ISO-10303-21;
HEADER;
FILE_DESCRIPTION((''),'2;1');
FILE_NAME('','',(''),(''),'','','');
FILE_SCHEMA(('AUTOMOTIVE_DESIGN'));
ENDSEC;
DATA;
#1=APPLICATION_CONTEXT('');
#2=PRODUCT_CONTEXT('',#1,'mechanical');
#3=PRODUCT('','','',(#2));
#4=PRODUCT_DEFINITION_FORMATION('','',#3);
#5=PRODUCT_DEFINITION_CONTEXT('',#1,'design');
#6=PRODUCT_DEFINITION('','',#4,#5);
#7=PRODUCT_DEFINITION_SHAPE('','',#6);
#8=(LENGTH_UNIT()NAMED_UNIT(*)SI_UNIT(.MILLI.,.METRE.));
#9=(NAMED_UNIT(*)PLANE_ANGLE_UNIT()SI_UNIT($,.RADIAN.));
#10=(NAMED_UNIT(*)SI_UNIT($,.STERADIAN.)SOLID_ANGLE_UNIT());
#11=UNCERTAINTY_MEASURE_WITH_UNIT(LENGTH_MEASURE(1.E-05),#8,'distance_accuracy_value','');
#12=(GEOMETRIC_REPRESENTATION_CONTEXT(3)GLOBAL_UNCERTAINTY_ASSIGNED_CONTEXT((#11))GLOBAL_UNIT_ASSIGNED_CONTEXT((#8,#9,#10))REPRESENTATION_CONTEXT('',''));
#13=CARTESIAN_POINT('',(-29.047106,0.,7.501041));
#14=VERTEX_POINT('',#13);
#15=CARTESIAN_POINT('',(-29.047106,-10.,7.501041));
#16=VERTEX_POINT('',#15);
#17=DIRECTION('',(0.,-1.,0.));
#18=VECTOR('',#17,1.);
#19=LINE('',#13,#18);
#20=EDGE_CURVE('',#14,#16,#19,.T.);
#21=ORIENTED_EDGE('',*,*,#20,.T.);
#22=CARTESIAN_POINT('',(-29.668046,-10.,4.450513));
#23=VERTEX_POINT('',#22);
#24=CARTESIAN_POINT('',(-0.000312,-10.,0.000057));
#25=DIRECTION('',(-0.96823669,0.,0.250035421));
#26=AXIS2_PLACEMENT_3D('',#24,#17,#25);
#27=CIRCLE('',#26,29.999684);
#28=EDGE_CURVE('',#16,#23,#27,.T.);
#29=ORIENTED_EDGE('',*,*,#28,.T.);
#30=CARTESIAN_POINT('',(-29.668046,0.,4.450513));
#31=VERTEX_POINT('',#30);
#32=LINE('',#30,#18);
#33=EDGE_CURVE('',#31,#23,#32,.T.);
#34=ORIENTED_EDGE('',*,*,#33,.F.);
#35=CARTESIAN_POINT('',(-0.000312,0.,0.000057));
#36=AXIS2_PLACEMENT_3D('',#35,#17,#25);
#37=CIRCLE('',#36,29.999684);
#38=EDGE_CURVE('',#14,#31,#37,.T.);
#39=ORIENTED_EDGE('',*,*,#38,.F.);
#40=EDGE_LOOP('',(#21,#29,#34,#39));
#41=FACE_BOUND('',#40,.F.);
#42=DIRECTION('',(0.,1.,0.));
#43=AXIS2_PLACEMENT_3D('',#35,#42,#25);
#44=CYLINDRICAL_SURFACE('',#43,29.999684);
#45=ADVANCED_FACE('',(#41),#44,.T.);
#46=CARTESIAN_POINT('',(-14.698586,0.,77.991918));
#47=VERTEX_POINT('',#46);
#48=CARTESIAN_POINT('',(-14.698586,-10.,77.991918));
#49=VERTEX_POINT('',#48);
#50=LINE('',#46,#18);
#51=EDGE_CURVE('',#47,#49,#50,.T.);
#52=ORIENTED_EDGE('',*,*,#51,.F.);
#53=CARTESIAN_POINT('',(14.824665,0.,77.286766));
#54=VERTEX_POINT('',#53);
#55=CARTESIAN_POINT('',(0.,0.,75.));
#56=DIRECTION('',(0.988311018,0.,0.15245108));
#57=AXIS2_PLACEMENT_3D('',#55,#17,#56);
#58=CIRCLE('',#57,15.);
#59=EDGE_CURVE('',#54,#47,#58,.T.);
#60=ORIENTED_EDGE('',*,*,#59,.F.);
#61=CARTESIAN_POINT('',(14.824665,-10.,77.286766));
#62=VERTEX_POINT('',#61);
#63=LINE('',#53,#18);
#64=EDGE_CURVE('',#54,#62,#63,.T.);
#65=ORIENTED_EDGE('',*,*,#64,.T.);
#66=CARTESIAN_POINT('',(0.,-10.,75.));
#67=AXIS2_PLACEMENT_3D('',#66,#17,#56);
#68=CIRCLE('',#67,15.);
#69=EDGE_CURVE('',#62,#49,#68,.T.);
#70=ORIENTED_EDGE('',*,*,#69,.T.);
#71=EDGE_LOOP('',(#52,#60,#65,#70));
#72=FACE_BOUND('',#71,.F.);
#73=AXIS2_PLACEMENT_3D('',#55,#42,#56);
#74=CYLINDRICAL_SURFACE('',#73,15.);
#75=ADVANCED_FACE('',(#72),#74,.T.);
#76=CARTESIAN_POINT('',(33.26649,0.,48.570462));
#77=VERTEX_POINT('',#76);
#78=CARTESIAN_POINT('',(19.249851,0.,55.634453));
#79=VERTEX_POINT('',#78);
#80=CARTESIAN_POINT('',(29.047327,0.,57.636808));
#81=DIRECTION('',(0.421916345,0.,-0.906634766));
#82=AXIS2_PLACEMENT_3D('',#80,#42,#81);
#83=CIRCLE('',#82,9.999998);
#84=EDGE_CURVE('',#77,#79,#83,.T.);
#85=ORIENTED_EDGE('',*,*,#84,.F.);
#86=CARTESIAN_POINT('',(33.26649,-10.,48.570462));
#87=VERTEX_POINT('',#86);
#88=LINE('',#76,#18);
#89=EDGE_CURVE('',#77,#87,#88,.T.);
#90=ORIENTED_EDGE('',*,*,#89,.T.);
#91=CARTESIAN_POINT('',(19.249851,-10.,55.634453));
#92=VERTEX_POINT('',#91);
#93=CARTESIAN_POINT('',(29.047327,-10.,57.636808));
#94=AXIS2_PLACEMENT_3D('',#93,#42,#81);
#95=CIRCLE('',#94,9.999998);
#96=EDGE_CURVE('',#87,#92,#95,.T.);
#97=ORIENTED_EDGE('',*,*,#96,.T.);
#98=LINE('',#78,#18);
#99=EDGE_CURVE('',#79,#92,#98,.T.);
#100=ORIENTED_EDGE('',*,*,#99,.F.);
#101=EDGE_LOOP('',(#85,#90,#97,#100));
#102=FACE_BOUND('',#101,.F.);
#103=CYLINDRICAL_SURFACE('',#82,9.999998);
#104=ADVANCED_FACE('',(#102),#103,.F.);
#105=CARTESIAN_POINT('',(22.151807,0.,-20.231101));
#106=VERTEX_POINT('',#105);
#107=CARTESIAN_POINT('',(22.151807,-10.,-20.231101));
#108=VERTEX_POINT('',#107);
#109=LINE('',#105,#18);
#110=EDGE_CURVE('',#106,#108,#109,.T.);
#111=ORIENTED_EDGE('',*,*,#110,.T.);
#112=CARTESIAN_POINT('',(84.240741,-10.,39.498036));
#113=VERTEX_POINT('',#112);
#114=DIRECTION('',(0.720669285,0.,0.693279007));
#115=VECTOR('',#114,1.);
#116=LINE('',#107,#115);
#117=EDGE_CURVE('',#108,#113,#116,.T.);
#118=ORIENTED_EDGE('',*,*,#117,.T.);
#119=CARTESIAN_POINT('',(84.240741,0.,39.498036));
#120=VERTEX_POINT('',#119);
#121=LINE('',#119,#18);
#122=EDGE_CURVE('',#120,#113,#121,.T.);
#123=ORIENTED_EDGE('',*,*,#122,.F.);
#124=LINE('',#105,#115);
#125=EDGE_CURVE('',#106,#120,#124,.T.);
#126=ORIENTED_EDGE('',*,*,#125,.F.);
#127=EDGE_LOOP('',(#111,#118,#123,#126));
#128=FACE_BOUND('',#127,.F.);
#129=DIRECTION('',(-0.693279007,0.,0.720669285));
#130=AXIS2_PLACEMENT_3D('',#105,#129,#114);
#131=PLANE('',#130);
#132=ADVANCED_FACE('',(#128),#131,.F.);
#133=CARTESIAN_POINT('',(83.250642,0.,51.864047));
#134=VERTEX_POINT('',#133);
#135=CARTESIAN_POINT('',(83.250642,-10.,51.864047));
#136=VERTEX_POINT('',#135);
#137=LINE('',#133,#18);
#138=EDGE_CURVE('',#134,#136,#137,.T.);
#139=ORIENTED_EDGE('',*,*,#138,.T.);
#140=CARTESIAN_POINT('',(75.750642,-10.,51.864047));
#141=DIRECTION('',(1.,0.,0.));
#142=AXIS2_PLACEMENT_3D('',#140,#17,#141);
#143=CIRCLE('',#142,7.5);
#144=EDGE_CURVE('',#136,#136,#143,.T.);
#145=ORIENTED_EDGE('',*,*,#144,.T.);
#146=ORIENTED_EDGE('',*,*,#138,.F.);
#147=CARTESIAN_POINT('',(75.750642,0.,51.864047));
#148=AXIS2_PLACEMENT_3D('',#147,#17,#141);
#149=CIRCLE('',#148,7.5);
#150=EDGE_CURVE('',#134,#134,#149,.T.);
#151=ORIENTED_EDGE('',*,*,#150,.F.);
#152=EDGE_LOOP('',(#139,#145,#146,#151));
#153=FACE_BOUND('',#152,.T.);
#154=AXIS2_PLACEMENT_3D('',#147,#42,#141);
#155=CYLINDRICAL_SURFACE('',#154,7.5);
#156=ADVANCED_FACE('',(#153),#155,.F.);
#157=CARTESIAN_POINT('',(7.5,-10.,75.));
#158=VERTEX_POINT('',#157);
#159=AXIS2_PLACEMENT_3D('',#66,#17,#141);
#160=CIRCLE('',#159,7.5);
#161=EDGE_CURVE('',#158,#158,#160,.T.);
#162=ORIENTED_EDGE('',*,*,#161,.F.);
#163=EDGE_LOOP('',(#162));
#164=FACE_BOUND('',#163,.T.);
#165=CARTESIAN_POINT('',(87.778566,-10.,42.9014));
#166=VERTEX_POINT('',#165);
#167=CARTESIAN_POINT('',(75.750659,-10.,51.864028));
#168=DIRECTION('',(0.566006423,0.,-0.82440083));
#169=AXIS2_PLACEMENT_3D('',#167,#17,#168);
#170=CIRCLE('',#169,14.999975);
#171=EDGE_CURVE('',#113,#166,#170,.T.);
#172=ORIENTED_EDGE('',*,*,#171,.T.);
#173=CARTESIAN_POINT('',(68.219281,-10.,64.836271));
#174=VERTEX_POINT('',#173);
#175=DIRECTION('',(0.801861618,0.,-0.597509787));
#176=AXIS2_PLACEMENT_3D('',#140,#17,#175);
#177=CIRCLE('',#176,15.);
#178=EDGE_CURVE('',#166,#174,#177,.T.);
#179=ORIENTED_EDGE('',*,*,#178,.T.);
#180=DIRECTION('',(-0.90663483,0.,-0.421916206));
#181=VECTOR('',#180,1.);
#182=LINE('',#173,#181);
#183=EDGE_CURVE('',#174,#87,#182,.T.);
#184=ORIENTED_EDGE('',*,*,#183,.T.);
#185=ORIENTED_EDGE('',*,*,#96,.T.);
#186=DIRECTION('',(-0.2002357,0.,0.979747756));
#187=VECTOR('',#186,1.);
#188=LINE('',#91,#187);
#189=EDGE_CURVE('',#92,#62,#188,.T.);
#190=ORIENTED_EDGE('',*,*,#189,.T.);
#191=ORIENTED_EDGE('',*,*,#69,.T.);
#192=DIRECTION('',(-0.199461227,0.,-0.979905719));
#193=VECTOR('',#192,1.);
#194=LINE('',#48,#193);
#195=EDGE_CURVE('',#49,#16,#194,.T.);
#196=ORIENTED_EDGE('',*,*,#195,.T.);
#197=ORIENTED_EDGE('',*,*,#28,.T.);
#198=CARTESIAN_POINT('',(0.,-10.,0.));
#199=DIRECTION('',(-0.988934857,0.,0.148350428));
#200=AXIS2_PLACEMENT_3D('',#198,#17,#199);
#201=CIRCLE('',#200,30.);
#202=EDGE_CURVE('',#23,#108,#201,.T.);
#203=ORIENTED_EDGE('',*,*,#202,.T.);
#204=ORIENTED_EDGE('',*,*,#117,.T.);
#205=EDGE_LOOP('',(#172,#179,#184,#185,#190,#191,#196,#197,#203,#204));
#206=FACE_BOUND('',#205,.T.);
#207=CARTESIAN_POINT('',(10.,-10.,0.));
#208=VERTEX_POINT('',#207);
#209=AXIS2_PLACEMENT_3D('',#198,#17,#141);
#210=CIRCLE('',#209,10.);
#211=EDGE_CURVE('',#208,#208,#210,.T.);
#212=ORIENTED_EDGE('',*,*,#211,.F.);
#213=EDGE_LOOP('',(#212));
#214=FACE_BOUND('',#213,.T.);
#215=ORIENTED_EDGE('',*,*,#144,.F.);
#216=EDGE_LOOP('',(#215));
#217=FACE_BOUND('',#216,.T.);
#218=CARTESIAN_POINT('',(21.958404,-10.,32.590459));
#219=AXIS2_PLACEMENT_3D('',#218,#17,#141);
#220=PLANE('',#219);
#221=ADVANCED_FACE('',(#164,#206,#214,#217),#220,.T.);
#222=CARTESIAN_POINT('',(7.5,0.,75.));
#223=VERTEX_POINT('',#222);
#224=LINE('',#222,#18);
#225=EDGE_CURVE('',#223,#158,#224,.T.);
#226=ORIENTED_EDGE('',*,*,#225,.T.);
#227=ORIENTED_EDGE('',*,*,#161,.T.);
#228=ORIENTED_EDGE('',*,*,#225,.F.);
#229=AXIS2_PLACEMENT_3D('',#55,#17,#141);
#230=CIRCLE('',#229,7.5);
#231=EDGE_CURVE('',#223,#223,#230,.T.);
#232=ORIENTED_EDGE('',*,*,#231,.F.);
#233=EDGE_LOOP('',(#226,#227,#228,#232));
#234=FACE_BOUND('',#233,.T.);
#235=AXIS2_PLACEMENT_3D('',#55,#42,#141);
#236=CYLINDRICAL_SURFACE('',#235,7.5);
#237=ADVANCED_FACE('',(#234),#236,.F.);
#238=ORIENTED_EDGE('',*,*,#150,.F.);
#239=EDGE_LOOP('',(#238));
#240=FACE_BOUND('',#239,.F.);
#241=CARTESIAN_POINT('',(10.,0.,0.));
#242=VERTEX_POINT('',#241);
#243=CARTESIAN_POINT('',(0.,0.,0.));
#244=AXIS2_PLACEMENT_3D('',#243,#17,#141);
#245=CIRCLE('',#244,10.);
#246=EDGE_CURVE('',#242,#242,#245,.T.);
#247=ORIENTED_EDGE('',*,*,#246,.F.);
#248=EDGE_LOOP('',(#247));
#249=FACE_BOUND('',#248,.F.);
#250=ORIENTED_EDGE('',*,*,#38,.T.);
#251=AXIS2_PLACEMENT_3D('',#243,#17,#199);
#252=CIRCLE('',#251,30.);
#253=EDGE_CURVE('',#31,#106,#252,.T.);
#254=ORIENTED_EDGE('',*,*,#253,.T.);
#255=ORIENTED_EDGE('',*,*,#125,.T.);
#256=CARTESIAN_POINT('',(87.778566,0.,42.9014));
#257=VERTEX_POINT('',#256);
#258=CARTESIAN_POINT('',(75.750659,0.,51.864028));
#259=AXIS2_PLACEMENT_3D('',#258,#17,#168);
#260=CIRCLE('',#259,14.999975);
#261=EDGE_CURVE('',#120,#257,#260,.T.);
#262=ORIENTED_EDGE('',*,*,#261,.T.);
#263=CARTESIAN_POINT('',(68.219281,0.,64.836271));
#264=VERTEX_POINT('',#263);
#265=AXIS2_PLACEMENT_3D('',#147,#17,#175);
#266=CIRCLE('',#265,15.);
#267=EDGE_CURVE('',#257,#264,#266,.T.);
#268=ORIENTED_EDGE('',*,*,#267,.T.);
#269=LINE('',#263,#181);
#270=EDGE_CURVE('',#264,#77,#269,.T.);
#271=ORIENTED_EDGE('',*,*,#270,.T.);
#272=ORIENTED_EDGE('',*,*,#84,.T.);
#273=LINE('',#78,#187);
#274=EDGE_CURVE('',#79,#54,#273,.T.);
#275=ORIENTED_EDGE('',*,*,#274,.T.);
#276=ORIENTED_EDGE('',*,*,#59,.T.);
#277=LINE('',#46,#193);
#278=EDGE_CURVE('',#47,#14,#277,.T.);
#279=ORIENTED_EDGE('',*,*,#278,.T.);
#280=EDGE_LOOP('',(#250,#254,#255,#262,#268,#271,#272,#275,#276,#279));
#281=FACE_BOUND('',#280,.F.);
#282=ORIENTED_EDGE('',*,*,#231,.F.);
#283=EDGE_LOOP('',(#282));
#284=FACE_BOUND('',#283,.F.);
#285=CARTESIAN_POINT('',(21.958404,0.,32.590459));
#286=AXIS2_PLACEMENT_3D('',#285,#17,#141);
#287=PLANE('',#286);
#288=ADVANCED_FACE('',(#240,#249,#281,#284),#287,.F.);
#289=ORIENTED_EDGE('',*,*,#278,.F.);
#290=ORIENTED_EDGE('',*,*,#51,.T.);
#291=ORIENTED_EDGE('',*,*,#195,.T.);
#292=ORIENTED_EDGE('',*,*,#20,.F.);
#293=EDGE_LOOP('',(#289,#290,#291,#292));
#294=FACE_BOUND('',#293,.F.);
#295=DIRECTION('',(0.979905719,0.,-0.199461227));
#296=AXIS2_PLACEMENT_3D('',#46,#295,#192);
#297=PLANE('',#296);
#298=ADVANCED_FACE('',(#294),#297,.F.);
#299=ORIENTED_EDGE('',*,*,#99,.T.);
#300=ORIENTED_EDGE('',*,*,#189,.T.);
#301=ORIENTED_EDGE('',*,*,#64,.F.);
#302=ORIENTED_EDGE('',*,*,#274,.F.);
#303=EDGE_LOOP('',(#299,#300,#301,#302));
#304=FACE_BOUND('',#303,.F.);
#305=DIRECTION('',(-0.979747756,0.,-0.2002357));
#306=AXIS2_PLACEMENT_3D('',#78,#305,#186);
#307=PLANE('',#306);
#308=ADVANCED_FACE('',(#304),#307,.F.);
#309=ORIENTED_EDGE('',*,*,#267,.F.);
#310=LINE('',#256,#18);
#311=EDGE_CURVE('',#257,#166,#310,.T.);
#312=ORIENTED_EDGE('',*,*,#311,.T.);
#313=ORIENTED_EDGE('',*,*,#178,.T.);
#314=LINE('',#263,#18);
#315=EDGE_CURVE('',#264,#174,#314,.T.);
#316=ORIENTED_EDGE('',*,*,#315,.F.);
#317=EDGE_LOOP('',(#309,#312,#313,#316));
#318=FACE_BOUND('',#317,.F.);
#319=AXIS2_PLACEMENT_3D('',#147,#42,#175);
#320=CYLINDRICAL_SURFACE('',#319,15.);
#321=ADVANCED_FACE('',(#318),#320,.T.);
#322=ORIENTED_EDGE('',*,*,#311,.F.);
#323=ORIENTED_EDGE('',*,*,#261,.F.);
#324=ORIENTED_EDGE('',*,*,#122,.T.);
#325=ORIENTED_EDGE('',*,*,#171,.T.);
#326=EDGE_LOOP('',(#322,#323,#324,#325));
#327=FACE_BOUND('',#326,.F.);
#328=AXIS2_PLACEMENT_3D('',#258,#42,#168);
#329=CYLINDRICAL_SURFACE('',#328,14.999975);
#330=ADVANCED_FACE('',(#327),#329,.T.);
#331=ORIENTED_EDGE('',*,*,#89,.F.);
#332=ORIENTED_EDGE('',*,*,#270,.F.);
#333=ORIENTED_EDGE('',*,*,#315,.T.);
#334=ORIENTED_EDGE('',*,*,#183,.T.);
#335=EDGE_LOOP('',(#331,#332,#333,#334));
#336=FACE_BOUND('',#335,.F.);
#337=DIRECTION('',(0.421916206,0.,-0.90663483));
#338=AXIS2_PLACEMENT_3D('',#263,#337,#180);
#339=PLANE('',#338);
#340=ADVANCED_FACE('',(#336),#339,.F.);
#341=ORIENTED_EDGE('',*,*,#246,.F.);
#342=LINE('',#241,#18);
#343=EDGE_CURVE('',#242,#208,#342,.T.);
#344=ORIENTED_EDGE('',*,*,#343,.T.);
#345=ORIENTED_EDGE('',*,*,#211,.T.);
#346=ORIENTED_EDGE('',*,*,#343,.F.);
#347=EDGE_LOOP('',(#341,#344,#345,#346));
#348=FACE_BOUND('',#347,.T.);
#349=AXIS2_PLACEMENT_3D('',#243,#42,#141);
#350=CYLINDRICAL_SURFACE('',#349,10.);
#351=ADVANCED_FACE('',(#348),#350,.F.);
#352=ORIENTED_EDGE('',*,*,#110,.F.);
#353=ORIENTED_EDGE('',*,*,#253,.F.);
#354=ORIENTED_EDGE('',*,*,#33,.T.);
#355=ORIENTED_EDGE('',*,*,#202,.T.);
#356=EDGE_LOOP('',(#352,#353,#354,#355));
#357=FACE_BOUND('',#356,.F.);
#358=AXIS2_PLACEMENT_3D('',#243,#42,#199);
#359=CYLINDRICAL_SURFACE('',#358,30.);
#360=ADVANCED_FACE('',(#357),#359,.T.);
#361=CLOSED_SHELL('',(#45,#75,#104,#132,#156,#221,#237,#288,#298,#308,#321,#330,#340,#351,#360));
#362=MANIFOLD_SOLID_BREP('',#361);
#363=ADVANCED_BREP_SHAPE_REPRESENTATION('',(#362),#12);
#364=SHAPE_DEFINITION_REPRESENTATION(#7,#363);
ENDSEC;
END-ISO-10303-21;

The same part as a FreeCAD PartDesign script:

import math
import FreeCAD as App
import Part
import Sketcher
from FreeCAD import Vector

doc = App.newDocument("Part")
body = doc.addObject("PartDesign::Body", "Body")

# Sketch on XZ plane
sketch1 = body.newObject("Sketcher::SketchObject", "Sketch")
sketch1.AttachmentSupport = (doc.getObject("XZ_Plane"), [""])
sketch1.MapMode = "FlatFace"
sketch1.addGeometry([
    Part.LineSegment(Vector(19.249851, 55.634453, 0), Vector(14.824665, 77.286766, 0)),  # 0
    Part.ArcOfCircle(Part.Circle(Vector(0, 75, 0), Vector(0, 0, 1), 15), math.radians(8.768997), math.radians(168.494546)),  # 1
    Part.LineSegment(Vector(-14.698586, 77.991918, 0), Vector(-29.047106, 7.501041, 0)),  # 2
    Part.ArcOfCircle(Part.Circle(Vector(-0.000312, 0.000057, 0), Vector(0, 0, 1), 29.999684), math.radians(165.520392), math.radians(171.468677)),  # 3
    Part.ArcOfCircle(Part.Circle(Vector(0, 0, 0), Vector(0, 0, 1), 30), math.radians(171.468656), math.radians(317.594751)),  # 4
    Part.LineSegment(Vector(22.151807, -20.231101, 0), Vector(84.240741, 39.498036, 0)),  # 5
    Part.ArcOfCircle(Part.Circle(Vector(75.750659, 51.864028, 0), Vector(0, 0, 1), 14.999975), math.radians(-55.527792), math.radians(-36.691737)),  # 6
    Part.ArcOfCircle(Part.Circle(Vector(75.750642, 51.864047, 0), Vector(0, 0, 1), 15), math.radians(-36.691757), math.radians(120.138418)),  # 7
    Part.LineSegment(Vector(68.219281, 64.836271, 0), Vector(33.26649, 48.570462, 0)),  # 8
    Part.ArcOfCircle(Part.Circle(Vector(29.047327, 57.636808, 0), Vector(0, 0, 1), 9.999998), math.radians(-168.449266), math.radians(-65.044366)),  # 9
    Part.Circle(Vector(0, 0, 0), Vector(0, 0, 1), 10),  # 10
    Part.Circle(Vector(0, 75, 0), Vector(0, 0, 1), 7.5),  # 11
    Part.Circle(Vector(75.750642, 51.864047, 0), Vector(0, 0, 1), 7.5),  # 12
], False)
sketch1.addConstraint([
    Sketcher.Constraint("Coincident", 0, 2, 1, 1),
    Sketcher.Constraint("Tangent", 1, 2, 2, 1),
    Sketcher.Constraint("Coincident", 2, 2, 3, 1),
    Sketcher.Constraint("Tangent", 3, 2, 4, 1),
    Sketcher.Constraint("Coincident", 4, 2, 5, 1),
    Sketcher.Constraint("Coincident", 5, 2, 6, 1),
    Sketcher.Constraint("Tangent", 6, 2, 7, 1),
    Sketcher.Constraint("Coincident", 7, 2, 8, 1),
    Sketcher.Constraint("Tangent", 8, 2, 9, 2),
    Sketcher.Constraint("Tangent", 9, 1, 0, 1),
    Sketcher.Constraint("Coincident", 4, 3, -1, 1),
    Sketcher.Constraint("Coincident", 10, 3, -1, 1),
    Sketcher.Constraint("Coincident", 11, 3, 1, 3),
    Sketcher.Constraint("Coincident", 12, 3, 7, 3),
    Sketcher.Constraint("Equal", 1, 7),
    Sketcher.Constraint("Equal", 9, 10),
    Sketcher.Constraint("Equal", 11, 12),
    Sketcher.Constraint("PointOnObject", 1, 3, -2),
    Sketcher.Constraint("Diameter", 10, 20.0),
    Sketcher.Constraint("Diameter", 11, 15.0),
    Sketcher.Constraint("Radius", 1, 15.0),
    Sketcher.Constraint("Radius", 4, 30.0),
    Sketcher.Constraint("DistanceY", -1, 1, 1, 3, 75.0),
    Sketcher.Constraint("Radius", 3, 29.999684),
    Sketcher.Constraint("Radius", 6, 14.999975),
    Sketcher.Constraint("DistanceY", 4, 2, -1, 1, 20.231101),
    Sketcher.Constraint("DistanceY", -1, 1, 6, 2, 42.9014),
    Sketcher.Constraint("DistanceX", 7, 3, 5, 2, 8.490099),
    Sketcher.Constraint("DistanceX", -1, 1, 6, 3, 75.750659),
    Sketcher.Constraint("DistanceY", -1, 1, 9, 3, 57.636808),
    Sketcher.Constraint("DistanceY", -1, 1, 2, 2, 7.501041),
    Sketcher.Constraint("DistanceX", -1, 1, 7, 2, 68.219281),
    Sketcher.Constraint("DistanceY", -1, 1, 7, 2, 64.836271),
    Sketcher.Constraint("DistanceX", -1, 1, 8, 2, 33.26649),
    Sketcher.Constraint("DistanceY", 7, 3, 0, 2, 25.422719),
    Sketcher.Constraint("DistanceX", 3, 2, 2, 2, 0.62094),
])
pad1 = body.newObject("PartDesign::Pad", "Pad")
pad1.Profile = sketch1
pad1.Length = 10

doc.recompute()
